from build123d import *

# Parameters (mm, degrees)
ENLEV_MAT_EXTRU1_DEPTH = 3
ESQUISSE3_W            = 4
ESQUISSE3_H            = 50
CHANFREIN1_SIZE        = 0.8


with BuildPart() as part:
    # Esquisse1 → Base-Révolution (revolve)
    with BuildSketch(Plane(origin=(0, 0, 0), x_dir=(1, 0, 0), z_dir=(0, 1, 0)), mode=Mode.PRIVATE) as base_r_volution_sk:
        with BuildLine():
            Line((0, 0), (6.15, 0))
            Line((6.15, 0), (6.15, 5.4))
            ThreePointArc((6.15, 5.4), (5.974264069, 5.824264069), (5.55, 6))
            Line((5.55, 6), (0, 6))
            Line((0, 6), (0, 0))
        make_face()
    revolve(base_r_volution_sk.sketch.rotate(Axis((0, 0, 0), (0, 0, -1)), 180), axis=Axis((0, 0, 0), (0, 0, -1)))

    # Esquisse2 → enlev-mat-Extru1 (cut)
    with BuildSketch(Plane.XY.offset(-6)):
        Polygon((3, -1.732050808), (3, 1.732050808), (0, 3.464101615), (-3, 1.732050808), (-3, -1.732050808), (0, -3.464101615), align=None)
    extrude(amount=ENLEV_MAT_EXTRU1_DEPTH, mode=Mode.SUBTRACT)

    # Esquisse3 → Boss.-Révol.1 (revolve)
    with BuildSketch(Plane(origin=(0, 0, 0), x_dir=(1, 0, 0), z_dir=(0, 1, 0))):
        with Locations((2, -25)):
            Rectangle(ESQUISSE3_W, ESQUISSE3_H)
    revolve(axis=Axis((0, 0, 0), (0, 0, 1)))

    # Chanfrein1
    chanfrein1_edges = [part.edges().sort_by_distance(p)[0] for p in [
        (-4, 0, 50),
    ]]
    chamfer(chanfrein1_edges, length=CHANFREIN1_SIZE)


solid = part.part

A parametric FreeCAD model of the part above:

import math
import FreeCAD as App
import Part
import Sketcher
Q = App.Units.Quantity


def edges_at(feature, points):
    """Names of the edges that pass closest to the given points."""
    edges = feature.Shape.Edges
    near = lambda p: min(range(len(edges)), key=lambda i: edges[i].distToShape(Part.Vertex(*p))[0])
    return sorted({f"Edge{near(p) + 1}" for p in points})

doc = App.newDocument("Part")
body = doc.addObject("PartDesign::Body", "Body")

sketch1 = body.newObject("Sketcher::SketchObject", "Sketch")
sketch1.AttachmentSupport = (doc.getObject("XZ_Plane"), [""])
sketch1.MapMode = "FlatFace"
sketch1.addGeometry([
    Part.LineSegment(App.Vector(0, 0, 0), App.Vector(6.2, 0, 0)),
    Part.LineSegment(App.Vector(6.2, 0, 0), App.Vector(6.2, -5.4, 0)),
    Part.ArcOfCircle(Part.Circle(App.Vector(5.6, -5.4, 0), App.Vector(0, 0, 1), 0.6), math.radians(-90), math.radians(0)),
    Part.LineSegment(App.Vector(5.5, -6, 0), App.Vector(0, -6, 0)),
    Part.LineSegment(App.Vector(0, -6, 0), App.Vector(0, 0, 0)),
], False)
sketch1.addConstraint([
    Sketcher.Constraint("Coincident", 0, 2, 1, 1),
    Sketcher.Constraint("Tangent", 1, 2, 2, 2),
    Sketcher.Constraint("Tangent", 2, 1, 3, 1),
    Sketcher.Constraint("Coincident", 3, 2, 4, 1),
    Sketcher.Constraint("Coincident", 4, 2, 0, 1),
    Sketcher.Constraint("Horizontal", 0),
    Sketcher.Constraint("Vertical", 1),
    Sketcher.Constraint("Horizontal", 3),
    Sketcher.Constraint("Vertical", 4),
    Sketcher.Constraint("Coincident", 4, 2, -1, 1),
    Sketcher.Constraint("Radius", 2, 0.6),
    Sketcher.Constraint("DistanceY", 4, 1, 4, 2, 6.0),
    Sketcher.Constraint("DistanceX", 0, 1, 0, 2, 6.15),
])
revolution = body.newObject("PartDesign::Revolution", "Revolution")
revolution.Profile = sketch1
revolution.ReferenceAxis = (sketch1, ["V_Axis"])
revolution.Angle = 360

sketch2 = body.newObject("Sketcher::SketchObject", "Sketch001")
sketch2.AttachmentSupport = (doc.getObject("XY_Plane"), [""])
sketch2.MapMode = "FlatFace"
sketch2.AttachmentOffset = App.Placement(App.Vector(0, 0, -6), App.Rotation())
sketch2.addGeometry([
    Part.LineSegment(App.Vector(3, -1.7, 0), App.Vector(3, 1.7, 0)),
    Part.LineSegment(App.Vector(3, 1.7, 0), App.Vector(0, 3.5, 0)),
    Part.LineSegment(App.Vector(0, 3.5, 0), App.Vector(-3, 1.7, 0)),
    Part.LineSegment(App.Vector(-3, 1.7, 0), App.Vector(-3, -1.7, 0)),
    Part.LineSegment(App.Vector(-3, -1.7, 0), App.Vector(0, -3.5, 0)),
    Part.LineSegment(App.Vector(0, -3.5, 0), App.Vector(3, -1.7, 0)),
], False)
sketch2.addConstraint([
    Sketcher.Constraint("Coincident", 0, 2, 1, 1),
    Sketcher.Constraint("Coincident", 1, 2, 2, 1),
    Sketcher.Constraint("Coincident", 2, 2, 3, 1),
    Sketcher.Constraint("Coincident", 3, 2, 4, 1),
    Sketcher.Constraint("Coincident", 4, 2, 5, 1),
    Sketcher.Constraint("Coincident", 5, 2, 0, 1),
    Sketcher.Constraint("Vertical", 0),
    Sketcher.Constraint("Vertical", 3),
    Sketcher.Constraint("Symmetric", 0, 2, 3, 2, -1, 1),
    Sketcher.Constraint("Symmetric", 1, 2, 4, 2, -1, 1),
    Sketcher.Constraint("PointOnObject", 1, 2, -2),
    Sketcher.Constraint("Parallel", 2, 5),
    Sketcher.Constraint("Horizontal", 0, 2, 2, 2),
    Sketcher.Constraint("Angle", 1, Q("150 deg")),
    Sketcher.Constraint("DistanceX", -1, 1, 0, 2, 3.0),
    Sketcher.Constraint("DistanceY", 0, 1, 0, 2, 3.464102),
])
pocket1 = body.newObject("PartDesign::Pocket", "Pocket")
pocket1.Profile = sketch2
pocket1.Length = 3
pocket1.Reversed = True

sketch3 = body.newObject("Sketcher::SketchObject", "Sketch002")
sketch3.AttachmentSupport = (doc.getObject("XZ_Plane"), [""])
sketch3.MapMode = "FlatFace"
sketch3.addGeometry([
    Part.LineSegment(App.Vector(0, 0, 0), App.Vector(0, 50, 0)),
    Part.LineSegment(App.Vector(0, 50, 0), App.Vector(4, 50, 0)),
    Part.LineSegment(App.Vector(4, 50, 0), App.Vector(4, 0, 0)),
    Part.LineSegment(App.Vector(4, 0, 0), App.Vector(0, 0, 0)),
], False)
sketch3.addConstraint([
    Sketcher.Constraint("Coincident", 0, 2, 1, 1),
    Sketcher.Constraint("Coincident", 1, 2, 2, 1),
    Sketcher.Constraint("Coincident", 2, 2, 3, 1),
    Sketcher.Constraint("Coincident", 3, 2, 0, 1),
    Sketcher.Constraint("Vertical", 0),
    Sketcher.Constraint("Horizontal", 1),
    Sketcher.Constraint("Vertical", 2),
    Sketcher.Constraint("Horizontal", 3),
    Sketcher.Constraint("Coincident", 3, 2, -1, 1),
    Sketcher.Constraint("DistanceX", 1, 1, 1, 2, 4.0),
    Sketcher.Constraint("DistanceY", 0, 1, 0, 2, 50.0),
])
revolution2 = body.newObject("PartDesign::Revolution", "Revolution001")
revolution2.Profile = sketch3
revolution2.ReferenceAxis = (sketch3, ["V_Axis"])
revolution2.Angle = 360
doc.recompute()

chamfer = body.newObject("PartDesign::Chamfer", "Chamfer")
chamfer.Base = (revolution2, edges_at(revolution2, [(-4, 0, 50)]))
chamfer.Size = 0.8

doc.recompute()
